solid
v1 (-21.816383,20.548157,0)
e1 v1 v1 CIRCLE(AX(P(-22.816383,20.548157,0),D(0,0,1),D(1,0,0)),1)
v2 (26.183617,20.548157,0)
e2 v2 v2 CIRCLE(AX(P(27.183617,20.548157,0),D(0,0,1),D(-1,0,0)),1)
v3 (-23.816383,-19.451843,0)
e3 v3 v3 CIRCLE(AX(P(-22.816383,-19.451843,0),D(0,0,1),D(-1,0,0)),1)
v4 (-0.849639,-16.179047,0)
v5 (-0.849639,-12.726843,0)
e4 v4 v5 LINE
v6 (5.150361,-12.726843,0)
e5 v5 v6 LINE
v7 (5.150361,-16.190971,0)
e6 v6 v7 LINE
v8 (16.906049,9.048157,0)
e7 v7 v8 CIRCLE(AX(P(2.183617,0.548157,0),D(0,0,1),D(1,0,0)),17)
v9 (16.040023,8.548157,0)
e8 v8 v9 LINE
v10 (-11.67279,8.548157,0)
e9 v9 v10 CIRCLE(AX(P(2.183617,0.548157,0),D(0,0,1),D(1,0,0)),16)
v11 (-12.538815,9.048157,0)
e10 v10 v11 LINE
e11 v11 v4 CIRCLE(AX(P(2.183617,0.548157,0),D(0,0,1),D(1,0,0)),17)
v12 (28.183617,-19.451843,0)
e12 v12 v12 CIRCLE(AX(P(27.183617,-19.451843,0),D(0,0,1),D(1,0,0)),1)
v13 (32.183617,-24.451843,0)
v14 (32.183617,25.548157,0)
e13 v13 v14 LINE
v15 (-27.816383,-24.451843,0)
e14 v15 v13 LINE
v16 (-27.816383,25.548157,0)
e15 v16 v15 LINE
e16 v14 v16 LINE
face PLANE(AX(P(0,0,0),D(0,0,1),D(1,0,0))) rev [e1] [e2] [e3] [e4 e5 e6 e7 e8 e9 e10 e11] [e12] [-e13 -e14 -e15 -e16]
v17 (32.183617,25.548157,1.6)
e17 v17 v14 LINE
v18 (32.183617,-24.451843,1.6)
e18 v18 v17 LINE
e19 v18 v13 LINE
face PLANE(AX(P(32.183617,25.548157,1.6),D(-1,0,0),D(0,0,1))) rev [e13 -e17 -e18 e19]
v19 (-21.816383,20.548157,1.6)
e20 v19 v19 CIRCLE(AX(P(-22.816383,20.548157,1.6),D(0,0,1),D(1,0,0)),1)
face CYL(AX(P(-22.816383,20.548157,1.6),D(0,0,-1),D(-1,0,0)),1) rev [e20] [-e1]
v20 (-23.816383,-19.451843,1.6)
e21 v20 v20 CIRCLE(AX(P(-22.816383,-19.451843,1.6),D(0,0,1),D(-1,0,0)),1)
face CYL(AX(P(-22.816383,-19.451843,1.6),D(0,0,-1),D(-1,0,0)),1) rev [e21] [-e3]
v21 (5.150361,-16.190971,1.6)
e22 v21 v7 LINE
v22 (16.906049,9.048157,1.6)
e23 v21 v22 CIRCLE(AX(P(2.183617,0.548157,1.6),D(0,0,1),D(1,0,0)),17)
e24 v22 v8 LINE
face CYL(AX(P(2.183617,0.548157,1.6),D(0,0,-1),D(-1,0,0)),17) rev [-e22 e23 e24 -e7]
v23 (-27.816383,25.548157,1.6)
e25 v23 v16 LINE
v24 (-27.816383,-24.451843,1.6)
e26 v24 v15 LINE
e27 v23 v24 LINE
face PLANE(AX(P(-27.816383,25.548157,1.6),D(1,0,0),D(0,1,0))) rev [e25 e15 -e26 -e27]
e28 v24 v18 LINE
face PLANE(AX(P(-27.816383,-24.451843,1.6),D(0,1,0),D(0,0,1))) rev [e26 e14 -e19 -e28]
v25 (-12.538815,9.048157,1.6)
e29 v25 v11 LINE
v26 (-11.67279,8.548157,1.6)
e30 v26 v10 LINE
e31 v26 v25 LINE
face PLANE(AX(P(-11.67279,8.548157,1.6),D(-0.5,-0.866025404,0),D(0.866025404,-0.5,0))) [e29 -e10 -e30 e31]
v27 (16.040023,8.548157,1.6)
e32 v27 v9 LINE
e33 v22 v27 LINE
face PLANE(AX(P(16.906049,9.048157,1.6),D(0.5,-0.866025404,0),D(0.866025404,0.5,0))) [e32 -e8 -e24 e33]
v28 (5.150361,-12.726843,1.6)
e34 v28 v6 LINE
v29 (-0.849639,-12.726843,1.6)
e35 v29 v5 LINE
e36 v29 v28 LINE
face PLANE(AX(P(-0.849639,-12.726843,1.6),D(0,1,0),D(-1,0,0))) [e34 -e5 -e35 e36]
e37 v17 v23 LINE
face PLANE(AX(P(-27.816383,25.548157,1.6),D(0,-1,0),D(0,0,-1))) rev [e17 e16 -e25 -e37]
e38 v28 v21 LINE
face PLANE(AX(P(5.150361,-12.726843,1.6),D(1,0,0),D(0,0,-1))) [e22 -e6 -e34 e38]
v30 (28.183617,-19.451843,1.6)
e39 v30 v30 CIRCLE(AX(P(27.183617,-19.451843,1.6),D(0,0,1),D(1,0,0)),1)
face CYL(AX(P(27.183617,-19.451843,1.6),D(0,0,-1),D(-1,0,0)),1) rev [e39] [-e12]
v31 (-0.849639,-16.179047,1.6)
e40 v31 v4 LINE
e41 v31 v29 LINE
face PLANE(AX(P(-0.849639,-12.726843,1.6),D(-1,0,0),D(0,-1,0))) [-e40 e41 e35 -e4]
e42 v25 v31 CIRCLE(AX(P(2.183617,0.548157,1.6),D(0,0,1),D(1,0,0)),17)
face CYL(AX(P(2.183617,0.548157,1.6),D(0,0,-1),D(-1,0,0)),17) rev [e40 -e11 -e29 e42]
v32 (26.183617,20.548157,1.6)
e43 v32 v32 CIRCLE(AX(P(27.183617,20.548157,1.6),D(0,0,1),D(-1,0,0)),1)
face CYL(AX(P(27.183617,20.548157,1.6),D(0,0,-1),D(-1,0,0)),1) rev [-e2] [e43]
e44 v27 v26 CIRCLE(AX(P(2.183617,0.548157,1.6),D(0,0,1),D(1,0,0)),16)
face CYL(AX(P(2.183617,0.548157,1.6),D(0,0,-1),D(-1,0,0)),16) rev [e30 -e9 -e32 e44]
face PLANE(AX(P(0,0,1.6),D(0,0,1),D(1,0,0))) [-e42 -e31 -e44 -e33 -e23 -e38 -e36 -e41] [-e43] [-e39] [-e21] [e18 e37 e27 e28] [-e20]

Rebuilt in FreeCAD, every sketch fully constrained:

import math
import FreeCAD as App
import Part
import Sketcher
Q = App.Units.Quantity


def add_polygon(sketch, points):
    """Adds a closed chain of lines whose ends are joined by coincident constraints."""
    first, n = sketch.GeometryCount, len(points)
    for a, b in zip(points, points[1:] + points[:1]):
        sketch.addGeometry(Part.LineSegment(App.Vector(*a, 0), App.Vector(*b, 0)), False)
    for i in range(n):
        sketch.addConstraint(Sketcher.Constraint("Coincident", first + i, 2, first + (i + 1) % n, 1))

doc = App.newDocument("Part")
params = doc.addObject("Spreadsheet::Sheet", "Params")
for row, (alias, value) in enumerate([
    ("sketch1_diameter", "2 mm"),
    ("sketch1_radius", "17 mm"),
    ("sketch1_radius2", "16 mm"),
    ("sketch1_width", "60 mm"),
    ("sketch1_width2", "6 mm"),
    ("pad1_length", "1.6 mm"),
], start=1):
    params.set(f"A{row}", alias)
    params.set(f"B{row}", "=" + value)
    params.setAlias(f"B{row}", alias)

body = doc.addObject("PartDesign::Body", "Body")

# Sketch on XY plane
sketch1 = doc.addObject("Sketcher::SketchObject", "Sketch")
body.addObject(sketch1)
sketch1.AttachmentSupport = (doc.XY_Plane, [""])
sketch1.MapMode = "FlatFace"
add_polygon(sketch1, [(-27.816383, 25.548157), (-27.816383, -24.451843), (32.183617, -24.451843), (32.183617, 25.548157)])  # lines 0-3
sketch1.addGeometry(Part.Circle(App.Vector(-22.816383, -19.451843, 0), App.Vector(0, 0, 1), 1), False)  # 4
sketch1.addGeometry(Part.LineSegment(App.Vector(5.150361, -12.726843, 0), App.Vector(-0.849639, -12.726843, 0)), False)  # 5
sketch1.addGeometry(Part.LineSegment(App.Vector(-0.849639, -12.726843, 0), App.Vector(-0.849639, -16.179047, 0)), False)  # 6
sketch1.addGeometry(Part.ArcOfCircle(Part.Circle(App.Vector(2.183617, 0.548157, 0), App.Vector(0, 0, 1), 17), math.radians(150), math.radians(259.72186)), False)  # 7
sketch1.addGeometry(Part.LineSegment(App.Vector(-12.538815, 9.048157, 0), App.Vector(-11.67279, 8.548157, 0)), False)  # 8
sketch1.addGeometry(Part.ArcOfCircle(Part.Circle(App.Vector(2.183617, 0.548157, 0), App.Vector(0, 0, 1), 16), math.radians(30), math.radians(150)), False)  # 9
sketch1.addGeometry(Part.LineSegment(App.Vector(16.040023, 8.548157, 0), App.Vector(16.906049, 9.048157, 0)), False)  # 10
sketch1.addGeometry(Part.ArcOfCircle(Part.Circle(App.Vector(2.183617, 0.548157, 0), App.Vector(0, 0, 1), 17), math.radians(-79.949602), math.radians(30)), False)  # 11
sketch1.addGeometry(Part.LineSegment(App.Vector(5.150361, -16.190971, 0), App.Vector(5.150361, -12.726843, 0)), False)  # 12
sketch1.addGeometry(Part.Circle(App.Vector(27.183617, -19.451843, 0), App.Vector(0, 0, 1), 1), False)  # 13
sketch1.addGeometry(Part.Circle(App.Vector(-22.816383, 20.548157, 0), App.Vector(0, 0, 1), 1), False)  # 14
sketch1.addGeometry(Part.Circle(App.Vector(27.183617, 20.548157, 0), App.Vector(0, 0, 1), 1), False)  # 15
sketch1.addConstraint(Sketcher.Constraint("Coincident", 5, 2, 6, 1))
sketch1.addConstraint(Sketcher.Constraint("Coincident", 6, 2, 7, 2))
sketch1.addConstraint(Sketcher.Constraint("Coincident", 7, 1, 8, 1))
sketch1.addConstraint(Sketcher.Constraint("Coincident", 8, 2, 9, 2))
sketch1.addConstraint(Sketcher.Constraint("Coincident", 9, 1, 10, 1))
sketch1.addConstraint(Sketcher.Constraint("Coincident", 10, 2, 11, 2))
sketch1.addConstraint(Sketcher.Constraint("Coincident", 11, 1, 12, 1))
sketch1.addConstraint(Sketcher.Constraint("Coincident", 12, 2, 5, 1))
sketch1.addConstraint(Sketcher.Constraint("Vertical", 0))
sketch1.addConstraint(Sketcher.Constraint("Horizontal", 1))
sketch1.addConstraint(Sketcher.Constraint("Vertical", 2))
sketch1.addConstraint(Sketcher.Constraint("Horizontal", 3))
sketch1.addConstraint(Sketcher.Constraint("Horizontal", 5))
sketch1.addConstraint(Sketcher.Constraint("Vertical", 6))
sketch1.addConstraint(Sketcher.Constraint("Vertical", 12))
sketch1.addConstraint(Sketcher.Constraint("Coincident", 9, 3, 7, 3))
sketch1.addConstraint(Sketcher.Constraint("Coincident", 11, 3, 7, 3))
sketch1.addConstraint(Sketcher.Constraint("Equal", 7, 11))
sketch1.addConstraint(Sketcher.Constraint("Equal", 4, 13))
sketch1.addConstraint(Sketcher.Constraint("Equal", 13, 14))
sketch1.addConstraint(Sketcher.Constraint("Equal", 14, 15))
sketch1.addConstraint(Sketcher.Constraint("Horizontal", 4, 3, 13, 3))
sketch1.addConstraint(Sketcher.Constraint("Horizontal", 14, 3, 15, 3))
sketch1.addConstraint(Sketcher.Constraint("Horizontal", 8, 2, 9, 1))
sketch1.addConstraint(Sketcher.Constraint("Horizontal", 7, 1, 10, 2))
sketch1.addConstraint(Sketcher.Constraint("Vertical", 4, 3, 14, 3))
sketch1.addConstraint(Sketcher.Constraint("Vertical", 13, 3, 15, 3))
sketch1.addConstraint(Sketcher.Constraint("Diameter", 4, 2.0))
sketch1.addConstraint(Sketcher.Constraint("Radius", 7, 17.0))
sketch1.addConstraint(Sketcher.Constraint("Radius", 9, 16.0))
sketch1.addConstraint(Sketcher.Constraint("DistanceX", 1, 1, 1, 2, 60.0))
sketch1.addConstraint(Sketcher.Constraint("DistanceX", 5, 2, 5, 1, 6.0))
sketch1.addConstraint(Sketcher.Constraint("DistanceY", 0, 2, 0, 1, 50.0))
sketch1.addConstraint(Sketcher.Constraint("Angle", 8, Q("-30 deg")))
sketch1.addConstraint(Sketcher.Constraint("DistanceX", 4, 3, 7, 3, 25.0))
sketch1.addConstraint(Sketcher.Constraint("DistanceY", 4, 3, 7, 3, 20.0))
sketch1.addConstraint(Sketcher.Constraint("DistanceX", 11, 3, 13, 3, 25.0))
sketch1.addConstraint(Sketcher.Constraint("DistanceY", 9, 3, 14, 3, 20.0))
sketch1.addConstraint(Sketcher.Constraint("DistanceX", 0, 2, 4, 3, 5.0))
sketch1.addConstraint(Sketcher.Constraint("DistanceY", 0, 2, 4, 3, 5.0))
sketch1.addConstraint(Sketcher.Constraint("DistanceY", 9, 3, 8, 2, 8.0))
sketch1.addConstraint(Sketcher.Constraint("DistanceY", 5, 2, 9, 3, 13.275))
sketch1.addConstraint(Sketcher.Constraint("DistanceY", 12, 1, 12, 2, 3.464129))
sketch1.addConstraint(Sketcher.Constraint("DistanceX", 5, 2, -1, 1, 0.849639))
sketch1.addConstraint(Sketcher.Constraint("DistanceY", 11, 1, -1, 1, 16.190971))
sketch1.setExpression("Constraints[31]", "Params.sketch1_diameter")
sketch1.setExpression("Constraints[32]", "Params.sketch1_radius")
sketch1.setExpression("Constraints[33]", "Params.sketch1_radius2")
sketch1.setExpression("Constraints[34]", "Params.sketch1_width")
sketch1.setExpression("Constraints[35]", "Params.sketch1_width2")
pad1 = doc.addObject("PartDesign::Pad", "Pad")
body.addObject(pad1)
pad1.Profile = sketch1
pad1.setExpression("Length", "Params.pad1_length")

doc.recompute()
